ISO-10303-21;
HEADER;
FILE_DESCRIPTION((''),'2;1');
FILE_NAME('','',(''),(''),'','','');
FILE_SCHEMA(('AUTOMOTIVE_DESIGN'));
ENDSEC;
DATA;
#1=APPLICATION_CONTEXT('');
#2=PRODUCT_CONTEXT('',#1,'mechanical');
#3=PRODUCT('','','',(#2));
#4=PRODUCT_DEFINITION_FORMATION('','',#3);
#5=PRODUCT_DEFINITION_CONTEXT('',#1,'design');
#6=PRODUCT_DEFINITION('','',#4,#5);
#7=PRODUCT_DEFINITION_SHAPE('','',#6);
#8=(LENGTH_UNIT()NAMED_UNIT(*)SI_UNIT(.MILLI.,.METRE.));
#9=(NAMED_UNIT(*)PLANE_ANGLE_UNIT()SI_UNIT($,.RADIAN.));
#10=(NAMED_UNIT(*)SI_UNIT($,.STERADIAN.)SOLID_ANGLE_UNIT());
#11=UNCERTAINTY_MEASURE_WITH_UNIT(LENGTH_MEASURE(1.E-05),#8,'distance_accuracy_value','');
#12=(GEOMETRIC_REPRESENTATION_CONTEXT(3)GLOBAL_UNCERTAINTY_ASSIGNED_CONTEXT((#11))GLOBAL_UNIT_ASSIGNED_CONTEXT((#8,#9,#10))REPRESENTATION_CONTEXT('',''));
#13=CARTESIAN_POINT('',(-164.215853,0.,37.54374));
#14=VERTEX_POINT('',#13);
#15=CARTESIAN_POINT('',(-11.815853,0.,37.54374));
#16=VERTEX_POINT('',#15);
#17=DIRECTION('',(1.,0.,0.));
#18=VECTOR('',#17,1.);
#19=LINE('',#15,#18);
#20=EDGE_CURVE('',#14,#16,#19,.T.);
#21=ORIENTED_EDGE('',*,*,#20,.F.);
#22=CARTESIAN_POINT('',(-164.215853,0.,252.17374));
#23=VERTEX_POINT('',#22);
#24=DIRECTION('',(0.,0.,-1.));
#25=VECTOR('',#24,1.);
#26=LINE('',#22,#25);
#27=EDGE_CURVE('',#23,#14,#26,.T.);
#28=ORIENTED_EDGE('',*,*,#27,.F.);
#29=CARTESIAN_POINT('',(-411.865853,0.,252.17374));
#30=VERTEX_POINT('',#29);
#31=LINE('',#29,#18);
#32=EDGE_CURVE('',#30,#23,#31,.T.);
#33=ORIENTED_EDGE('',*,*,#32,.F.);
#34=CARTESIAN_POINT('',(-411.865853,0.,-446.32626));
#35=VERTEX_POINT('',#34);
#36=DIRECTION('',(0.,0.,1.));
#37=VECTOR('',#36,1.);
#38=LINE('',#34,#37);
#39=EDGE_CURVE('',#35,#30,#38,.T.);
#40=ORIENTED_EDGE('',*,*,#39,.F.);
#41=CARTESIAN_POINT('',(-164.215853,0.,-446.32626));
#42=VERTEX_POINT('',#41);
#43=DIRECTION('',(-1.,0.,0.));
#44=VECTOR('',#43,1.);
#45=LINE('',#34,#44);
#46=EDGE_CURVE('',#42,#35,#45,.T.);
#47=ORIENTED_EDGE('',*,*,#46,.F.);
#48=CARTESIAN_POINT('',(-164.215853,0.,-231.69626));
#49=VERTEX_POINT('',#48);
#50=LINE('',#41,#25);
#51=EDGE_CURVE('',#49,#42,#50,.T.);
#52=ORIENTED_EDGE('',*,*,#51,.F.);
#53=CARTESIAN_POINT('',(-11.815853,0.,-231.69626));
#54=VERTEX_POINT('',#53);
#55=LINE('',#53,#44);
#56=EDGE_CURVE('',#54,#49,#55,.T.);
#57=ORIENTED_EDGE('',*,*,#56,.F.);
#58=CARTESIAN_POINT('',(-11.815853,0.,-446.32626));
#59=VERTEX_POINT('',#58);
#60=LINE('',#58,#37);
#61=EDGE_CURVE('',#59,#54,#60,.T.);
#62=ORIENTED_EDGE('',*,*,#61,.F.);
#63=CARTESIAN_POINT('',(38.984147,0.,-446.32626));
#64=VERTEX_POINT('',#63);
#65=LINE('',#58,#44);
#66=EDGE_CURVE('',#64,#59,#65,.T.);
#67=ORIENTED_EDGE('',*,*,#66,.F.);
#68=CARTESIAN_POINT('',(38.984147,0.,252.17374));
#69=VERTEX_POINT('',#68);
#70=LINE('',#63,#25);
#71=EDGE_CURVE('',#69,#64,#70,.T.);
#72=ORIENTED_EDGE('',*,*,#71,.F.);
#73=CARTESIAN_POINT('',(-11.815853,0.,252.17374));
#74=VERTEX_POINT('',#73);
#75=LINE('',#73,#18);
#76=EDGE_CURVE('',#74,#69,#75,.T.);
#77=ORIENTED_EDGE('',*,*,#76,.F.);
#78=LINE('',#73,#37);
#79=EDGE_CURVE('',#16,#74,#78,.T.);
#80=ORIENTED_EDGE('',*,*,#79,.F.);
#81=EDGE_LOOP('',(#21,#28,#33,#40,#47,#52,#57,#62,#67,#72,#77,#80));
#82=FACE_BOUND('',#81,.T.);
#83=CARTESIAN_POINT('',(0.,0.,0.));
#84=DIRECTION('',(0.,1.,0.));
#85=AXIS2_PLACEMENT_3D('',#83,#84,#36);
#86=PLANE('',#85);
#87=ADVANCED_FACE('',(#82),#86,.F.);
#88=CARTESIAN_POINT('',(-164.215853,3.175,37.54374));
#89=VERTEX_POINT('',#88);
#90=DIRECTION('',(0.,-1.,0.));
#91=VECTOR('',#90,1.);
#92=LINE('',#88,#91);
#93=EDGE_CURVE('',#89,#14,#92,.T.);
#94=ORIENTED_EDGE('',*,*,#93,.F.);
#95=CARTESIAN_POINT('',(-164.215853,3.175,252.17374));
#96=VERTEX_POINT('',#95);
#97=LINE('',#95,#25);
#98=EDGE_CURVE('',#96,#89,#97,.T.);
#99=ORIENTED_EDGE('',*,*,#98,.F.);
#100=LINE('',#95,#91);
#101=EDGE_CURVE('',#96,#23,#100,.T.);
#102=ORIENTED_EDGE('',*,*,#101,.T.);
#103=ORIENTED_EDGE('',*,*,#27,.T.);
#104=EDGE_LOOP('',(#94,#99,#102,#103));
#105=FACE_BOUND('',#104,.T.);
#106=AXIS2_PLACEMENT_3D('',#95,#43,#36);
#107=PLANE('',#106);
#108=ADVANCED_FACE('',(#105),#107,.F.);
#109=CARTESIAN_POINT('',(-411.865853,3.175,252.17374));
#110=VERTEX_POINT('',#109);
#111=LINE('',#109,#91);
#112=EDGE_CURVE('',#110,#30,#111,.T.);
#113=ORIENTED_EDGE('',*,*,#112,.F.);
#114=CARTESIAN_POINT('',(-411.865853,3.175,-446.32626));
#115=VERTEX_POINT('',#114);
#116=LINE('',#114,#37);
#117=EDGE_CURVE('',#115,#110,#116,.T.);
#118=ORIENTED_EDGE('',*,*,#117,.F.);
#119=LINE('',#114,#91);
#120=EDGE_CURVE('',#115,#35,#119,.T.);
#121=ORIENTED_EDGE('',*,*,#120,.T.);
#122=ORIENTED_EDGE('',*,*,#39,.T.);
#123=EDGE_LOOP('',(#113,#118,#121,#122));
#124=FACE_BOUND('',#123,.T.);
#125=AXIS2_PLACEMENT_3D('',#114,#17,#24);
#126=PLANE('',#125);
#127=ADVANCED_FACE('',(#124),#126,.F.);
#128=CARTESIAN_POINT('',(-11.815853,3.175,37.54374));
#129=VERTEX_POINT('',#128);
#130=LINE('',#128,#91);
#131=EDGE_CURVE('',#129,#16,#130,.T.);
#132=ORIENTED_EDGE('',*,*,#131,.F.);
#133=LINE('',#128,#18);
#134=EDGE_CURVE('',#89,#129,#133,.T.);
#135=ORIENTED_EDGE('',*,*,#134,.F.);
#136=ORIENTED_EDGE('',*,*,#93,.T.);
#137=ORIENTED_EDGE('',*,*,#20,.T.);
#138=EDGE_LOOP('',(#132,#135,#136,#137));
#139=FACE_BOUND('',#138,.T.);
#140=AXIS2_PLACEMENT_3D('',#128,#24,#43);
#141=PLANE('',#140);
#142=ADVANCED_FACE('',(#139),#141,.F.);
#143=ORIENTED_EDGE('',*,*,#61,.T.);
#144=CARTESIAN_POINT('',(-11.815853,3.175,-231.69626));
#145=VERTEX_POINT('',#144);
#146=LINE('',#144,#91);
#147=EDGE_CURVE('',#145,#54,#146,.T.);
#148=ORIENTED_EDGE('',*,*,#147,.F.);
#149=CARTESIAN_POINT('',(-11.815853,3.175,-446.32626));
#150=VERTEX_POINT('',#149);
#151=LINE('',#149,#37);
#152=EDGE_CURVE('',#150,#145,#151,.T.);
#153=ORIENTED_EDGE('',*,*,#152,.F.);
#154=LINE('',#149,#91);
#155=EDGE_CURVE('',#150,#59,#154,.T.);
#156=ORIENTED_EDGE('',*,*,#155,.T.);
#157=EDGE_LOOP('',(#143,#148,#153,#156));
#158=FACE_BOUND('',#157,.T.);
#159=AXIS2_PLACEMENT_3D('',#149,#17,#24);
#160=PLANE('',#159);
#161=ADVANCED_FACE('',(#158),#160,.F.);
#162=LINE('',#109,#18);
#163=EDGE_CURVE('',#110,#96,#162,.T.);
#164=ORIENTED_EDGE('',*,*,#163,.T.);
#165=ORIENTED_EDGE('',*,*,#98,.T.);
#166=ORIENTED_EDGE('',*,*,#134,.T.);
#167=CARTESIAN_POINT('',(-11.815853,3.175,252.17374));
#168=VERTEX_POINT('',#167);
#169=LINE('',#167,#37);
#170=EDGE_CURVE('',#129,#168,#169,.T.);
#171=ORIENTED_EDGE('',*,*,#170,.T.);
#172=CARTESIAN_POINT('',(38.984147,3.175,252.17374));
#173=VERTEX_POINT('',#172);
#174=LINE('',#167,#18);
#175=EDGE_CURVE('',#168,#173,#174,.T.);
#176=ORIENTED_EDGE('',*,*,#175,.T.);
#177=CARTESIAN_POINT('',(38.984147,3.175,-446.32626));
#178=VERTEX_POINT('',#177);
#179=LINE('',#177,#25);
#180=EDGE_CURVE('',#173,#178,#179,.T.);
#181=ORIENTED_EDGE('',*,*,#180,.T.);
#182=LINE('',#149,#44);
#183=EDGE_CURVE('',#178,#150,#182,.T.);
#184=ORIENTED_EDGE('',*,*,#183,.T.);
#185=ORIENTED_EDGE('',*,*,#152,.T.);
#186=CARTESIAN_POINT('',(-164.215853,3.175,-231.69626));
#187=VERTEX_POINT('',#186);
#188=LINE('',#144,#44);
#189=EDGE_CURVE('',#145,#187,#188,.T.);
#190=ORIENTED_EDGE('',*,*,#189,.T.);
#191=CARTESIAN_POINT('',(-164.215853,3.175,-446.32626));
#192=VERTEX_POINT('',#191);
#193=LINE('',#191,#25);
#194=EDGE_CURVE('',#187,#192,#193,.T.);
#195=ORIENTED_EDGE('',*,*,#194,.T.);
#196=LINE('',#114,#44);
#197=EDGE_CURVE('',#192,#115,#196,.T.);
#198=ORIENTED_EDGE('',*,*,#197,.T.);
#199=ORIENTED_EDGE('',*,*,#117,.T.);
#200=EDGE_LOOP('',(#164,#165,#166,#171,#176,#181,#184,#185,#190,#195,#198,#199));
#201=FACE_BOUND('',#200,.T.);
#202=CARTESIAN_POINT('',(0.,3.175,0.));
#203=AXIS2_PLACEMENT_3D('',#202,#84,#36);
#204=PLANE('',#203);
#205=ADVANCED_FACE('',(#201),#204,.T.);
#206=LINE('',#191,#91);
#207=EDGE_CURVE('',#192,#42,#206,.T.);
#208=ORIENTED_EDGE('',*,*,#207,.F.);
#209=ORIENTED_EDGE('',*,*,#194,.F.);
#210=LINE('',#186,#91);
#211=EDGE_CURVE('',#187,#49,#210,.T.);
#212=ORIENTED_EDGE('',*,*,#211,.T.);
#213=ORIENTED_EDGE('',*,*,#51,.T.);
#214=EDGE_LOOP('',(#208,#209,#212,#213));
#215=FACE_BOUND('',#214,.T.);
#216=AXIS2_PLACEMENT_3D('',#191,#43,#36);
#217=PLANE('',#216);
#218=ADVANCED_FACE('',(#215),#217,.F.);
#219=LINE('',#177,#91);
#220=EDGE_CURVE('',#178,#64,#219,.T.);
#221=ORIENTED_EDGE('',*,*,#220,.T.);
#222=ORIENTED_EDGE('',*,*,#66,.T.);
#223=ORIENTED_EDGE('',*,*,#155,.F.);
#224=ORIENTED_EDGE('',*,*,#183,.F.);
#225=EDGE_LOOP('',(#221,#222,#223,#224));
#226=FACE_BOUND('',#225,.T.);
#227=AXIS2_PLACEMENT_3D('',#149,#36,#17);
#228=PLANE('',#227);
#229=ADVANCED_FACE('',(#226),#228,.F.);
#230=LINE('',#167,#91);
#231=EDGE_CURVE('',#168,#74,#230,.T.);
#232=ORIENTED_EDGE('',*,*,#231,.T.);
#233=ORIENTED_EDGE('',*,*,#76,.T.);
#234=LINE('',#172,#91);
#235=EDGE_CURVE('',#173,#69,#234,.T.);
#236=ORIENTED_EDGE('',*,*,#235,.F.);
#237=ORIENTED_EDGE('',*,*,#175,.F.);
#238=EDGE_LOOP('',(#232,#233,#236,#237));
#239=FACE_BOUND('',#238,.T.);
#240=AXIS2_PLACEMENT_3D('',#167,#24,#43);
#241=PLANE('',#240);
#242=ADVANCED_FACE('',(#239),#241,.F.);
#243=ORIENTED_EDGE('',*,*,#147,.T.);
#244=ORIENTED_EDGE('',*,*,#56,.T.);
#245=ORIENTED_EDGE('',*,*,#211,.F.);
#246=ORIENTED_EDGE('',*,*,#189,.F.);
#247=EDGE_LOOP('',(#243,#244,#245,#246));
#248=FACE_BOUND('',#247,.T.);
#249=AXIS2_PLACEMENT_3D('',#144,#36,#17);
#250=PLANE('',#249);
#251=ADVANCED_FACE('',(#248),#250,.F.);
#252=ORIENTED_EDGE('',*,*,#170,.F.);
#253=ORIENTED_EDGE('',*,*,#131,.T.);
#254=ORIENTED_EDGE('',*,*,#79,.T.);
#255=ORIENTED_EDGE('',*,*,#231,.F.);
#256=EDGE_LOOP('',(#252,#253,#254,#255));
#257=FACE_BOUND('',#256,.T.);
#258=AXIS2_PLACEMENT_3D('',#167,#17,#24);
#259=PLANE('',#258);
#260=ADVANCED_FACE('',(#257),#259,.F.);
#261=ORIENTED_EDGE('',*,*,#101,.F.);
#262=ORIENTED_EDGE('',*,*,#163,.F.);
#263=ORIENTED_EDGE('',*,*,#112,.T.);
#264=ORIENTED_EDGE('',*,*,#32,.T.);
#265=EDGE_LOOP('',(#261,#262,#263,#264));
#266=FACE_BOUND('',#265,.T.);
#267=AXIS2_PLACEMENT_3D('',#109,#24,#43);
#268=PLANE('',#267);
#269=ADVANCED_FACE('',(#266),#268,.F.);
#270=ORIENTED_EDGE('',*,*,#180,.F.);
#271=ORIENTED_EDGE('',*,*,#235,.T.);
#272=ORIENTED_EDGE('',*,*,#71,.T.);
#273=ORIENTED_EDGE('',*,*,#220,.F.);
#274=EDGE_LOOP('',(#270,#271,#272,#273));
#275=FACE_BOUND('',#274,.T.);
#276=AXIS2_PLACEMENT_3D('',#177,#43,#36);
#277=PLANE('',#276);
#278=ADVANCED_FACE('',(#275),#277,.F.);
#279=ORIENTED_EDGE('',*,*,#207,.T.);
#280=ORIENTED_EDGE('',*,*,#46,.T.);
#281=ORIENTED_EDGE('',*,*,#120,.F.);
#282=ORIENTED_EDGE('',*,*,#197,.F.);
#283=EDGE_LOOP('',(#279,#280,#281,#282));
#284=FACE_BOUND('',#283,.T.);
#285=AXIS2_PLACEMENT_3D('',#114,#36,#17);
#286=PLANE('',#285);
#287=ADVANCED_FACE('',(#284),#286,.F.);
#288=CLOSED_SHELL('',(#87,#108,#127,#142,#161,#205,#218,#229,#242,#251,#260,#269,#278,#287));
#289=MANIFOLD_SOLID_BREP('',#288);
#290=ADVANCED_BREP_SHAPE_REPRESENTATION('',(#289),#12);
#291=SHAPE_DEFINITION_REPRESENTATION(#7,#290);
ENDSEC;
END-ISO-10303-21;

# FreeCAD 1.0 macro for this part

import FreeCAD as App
import Part
import Sketcher
Q = App.Units.Quantity


def add_polygon(sketch, points):
    """Adds a closed chain of lines whose ends are joined by coincident constraints."""
    first, n = sketch.GeometryCount, len(points)
    for a, b in zip(points, points[1:] + points[:1]):
        sketch.addGeometry(Part.LineSegment(App.Vector(*a, 0), App.Vector(*b, 0)), False)
    for i in range(n):
        sketch.addConstraint(Sketcher.Constraint("Coincident", first + i, 2, first + (i + 1) % n, 1))

doc = App.newDocument("Part")
params = doc.addObject("Spreadsheet::Sheet", "Params")
for row, (alias, value) in enumerate([
    ("sketch1_width", "2 in"),
    ("sketch1_width2", "6 in"),
    ("sketch1_height", "27.5 in"),
    ("sketch1_width3", "9.75 in"),
    ("sketch1_height2", "8.45 in"),
    ("pad1_length", "0.125 in"),
], start=1):
    params.set(f"A{row}", alias)
    params.set(f"B{row}", "=" + value)
    params.setAlias(f"B{row}", alias)

body = doc.addObject("PartDesign::Body", "Body")

# Sketch on XZ plane
sketch1 = body.newObject("Sketcher::SketchObject", "Sketch")
sketch1.AttachmentSupport = (doc.getObject("XZ_Plane"), [""])
sketch1.MapMode = "FlatFace"
add_polygon(sketch1, [(39, -446), (-12, -446), (-12, -232), (-164, -232), (-164, -446), (-412, -446), (-412, 252), (-164, 252), (-164, 38), (-12, 38), (-12, 252), (39, 252)])  # lines 0-11
sketch1.addConstraint(Sketcher.Constraint("Horizontal", 0))
sketch1.addConstraint(Sketcher.Constraint("Vertical", 1))
sketch1.addConstraint(Sketcher.Constraint("Horizontal", 2))
sketch1.addConstraint(Sketcher.Constraint("Vertical", 3))
sketch1.addConstraint(Sketcher.Constraint("Horizontal", 4))
sketch1.addConstraint(Sketcher.Constraint("Vertical", 5))
sketch1.addConstraint(Sketcher.Constraint("Horizontal", 6))
sketch1.addConstraint(Sketcher.Constraint("Vertical", 7))
sketch1.addConstraint(Sketcher.Constraint("Horizontal", 8))
sketch1.addConstraint(Sketcher.Constraint("Vertical", 9))
sketch1.addConstraint(Sketcher.Constraint("Horizontal", 10))
sketch1.addConstraint(Sketcher.Constraint("Vertical", 11))
sketch1.addConstraint(Sketcher.Constraint("Horizontal", 0, 2, 3, 2))
sketch1.addConstraint(Sketcher.Constraint("Horizontal", 6, 2, 9, 2))
sketch1.addConstraint(Sketcher.Constraint("Vertical", 3, 2, 6, 2))
sketch1.addConstraint(Sketcher.Constraint("Vertical", 1, 2, 8, 2))
sketch1.addConstraint(Sketcher.Constraint("Equal", 3, 7))
sketch1.addConstraint(Sketcher.Constraint("DistanceX", 0, 2, 0, 1, Q("2 in")))
sketch1.addConstraint(Sketcher.Constraint("DistanceX", 2, 2, 2, 1, Q("6 in")))
sketch1.addConstraint(Sketcher.Constraint("DistanceY", 5, 1, 5, 2, Q("27.5 in")))
sketch1.addConstraint(Sketcher.Constraint("DistanceX", 4, 2, 4, 1, Q("9.75 in")))
sketch1.addConstraint(Sketcher.Constraint("DistanceY", 1, 1, 1, 2, Q("8.45 in")))
sketch1.addConstraint(Sketcher.Constraint("DistanceY", 0, 2, -1, 1, Q("17.5719 in")))
sketch1.addConstraint(Sketcher.Constraint("DistanceX", 0, 2, -1, 1, Q("11.815853 mm")))
sketch1.setExpression("Constraints[29]", "Params.sketch1_width")
sketch1.setExpression("Constraints[30]", "Params.sketch1_width2")
sketch1.setExpression("Constraints[31]", "Params.sketch1_height")
sketch1.setExpression("Constraints[32]", "Params.sketch1_width3")
sketch1.setExpression("Constraints[33]", "Params.sketch1_height2")
pad1 = body.newObject("PartDesign::Pad", "Pad")
pad1.Profile = sketch1
pad1.setExpression("Length", "Params.pad1_length")
pad1.Reversed = True

doc.recompute()
